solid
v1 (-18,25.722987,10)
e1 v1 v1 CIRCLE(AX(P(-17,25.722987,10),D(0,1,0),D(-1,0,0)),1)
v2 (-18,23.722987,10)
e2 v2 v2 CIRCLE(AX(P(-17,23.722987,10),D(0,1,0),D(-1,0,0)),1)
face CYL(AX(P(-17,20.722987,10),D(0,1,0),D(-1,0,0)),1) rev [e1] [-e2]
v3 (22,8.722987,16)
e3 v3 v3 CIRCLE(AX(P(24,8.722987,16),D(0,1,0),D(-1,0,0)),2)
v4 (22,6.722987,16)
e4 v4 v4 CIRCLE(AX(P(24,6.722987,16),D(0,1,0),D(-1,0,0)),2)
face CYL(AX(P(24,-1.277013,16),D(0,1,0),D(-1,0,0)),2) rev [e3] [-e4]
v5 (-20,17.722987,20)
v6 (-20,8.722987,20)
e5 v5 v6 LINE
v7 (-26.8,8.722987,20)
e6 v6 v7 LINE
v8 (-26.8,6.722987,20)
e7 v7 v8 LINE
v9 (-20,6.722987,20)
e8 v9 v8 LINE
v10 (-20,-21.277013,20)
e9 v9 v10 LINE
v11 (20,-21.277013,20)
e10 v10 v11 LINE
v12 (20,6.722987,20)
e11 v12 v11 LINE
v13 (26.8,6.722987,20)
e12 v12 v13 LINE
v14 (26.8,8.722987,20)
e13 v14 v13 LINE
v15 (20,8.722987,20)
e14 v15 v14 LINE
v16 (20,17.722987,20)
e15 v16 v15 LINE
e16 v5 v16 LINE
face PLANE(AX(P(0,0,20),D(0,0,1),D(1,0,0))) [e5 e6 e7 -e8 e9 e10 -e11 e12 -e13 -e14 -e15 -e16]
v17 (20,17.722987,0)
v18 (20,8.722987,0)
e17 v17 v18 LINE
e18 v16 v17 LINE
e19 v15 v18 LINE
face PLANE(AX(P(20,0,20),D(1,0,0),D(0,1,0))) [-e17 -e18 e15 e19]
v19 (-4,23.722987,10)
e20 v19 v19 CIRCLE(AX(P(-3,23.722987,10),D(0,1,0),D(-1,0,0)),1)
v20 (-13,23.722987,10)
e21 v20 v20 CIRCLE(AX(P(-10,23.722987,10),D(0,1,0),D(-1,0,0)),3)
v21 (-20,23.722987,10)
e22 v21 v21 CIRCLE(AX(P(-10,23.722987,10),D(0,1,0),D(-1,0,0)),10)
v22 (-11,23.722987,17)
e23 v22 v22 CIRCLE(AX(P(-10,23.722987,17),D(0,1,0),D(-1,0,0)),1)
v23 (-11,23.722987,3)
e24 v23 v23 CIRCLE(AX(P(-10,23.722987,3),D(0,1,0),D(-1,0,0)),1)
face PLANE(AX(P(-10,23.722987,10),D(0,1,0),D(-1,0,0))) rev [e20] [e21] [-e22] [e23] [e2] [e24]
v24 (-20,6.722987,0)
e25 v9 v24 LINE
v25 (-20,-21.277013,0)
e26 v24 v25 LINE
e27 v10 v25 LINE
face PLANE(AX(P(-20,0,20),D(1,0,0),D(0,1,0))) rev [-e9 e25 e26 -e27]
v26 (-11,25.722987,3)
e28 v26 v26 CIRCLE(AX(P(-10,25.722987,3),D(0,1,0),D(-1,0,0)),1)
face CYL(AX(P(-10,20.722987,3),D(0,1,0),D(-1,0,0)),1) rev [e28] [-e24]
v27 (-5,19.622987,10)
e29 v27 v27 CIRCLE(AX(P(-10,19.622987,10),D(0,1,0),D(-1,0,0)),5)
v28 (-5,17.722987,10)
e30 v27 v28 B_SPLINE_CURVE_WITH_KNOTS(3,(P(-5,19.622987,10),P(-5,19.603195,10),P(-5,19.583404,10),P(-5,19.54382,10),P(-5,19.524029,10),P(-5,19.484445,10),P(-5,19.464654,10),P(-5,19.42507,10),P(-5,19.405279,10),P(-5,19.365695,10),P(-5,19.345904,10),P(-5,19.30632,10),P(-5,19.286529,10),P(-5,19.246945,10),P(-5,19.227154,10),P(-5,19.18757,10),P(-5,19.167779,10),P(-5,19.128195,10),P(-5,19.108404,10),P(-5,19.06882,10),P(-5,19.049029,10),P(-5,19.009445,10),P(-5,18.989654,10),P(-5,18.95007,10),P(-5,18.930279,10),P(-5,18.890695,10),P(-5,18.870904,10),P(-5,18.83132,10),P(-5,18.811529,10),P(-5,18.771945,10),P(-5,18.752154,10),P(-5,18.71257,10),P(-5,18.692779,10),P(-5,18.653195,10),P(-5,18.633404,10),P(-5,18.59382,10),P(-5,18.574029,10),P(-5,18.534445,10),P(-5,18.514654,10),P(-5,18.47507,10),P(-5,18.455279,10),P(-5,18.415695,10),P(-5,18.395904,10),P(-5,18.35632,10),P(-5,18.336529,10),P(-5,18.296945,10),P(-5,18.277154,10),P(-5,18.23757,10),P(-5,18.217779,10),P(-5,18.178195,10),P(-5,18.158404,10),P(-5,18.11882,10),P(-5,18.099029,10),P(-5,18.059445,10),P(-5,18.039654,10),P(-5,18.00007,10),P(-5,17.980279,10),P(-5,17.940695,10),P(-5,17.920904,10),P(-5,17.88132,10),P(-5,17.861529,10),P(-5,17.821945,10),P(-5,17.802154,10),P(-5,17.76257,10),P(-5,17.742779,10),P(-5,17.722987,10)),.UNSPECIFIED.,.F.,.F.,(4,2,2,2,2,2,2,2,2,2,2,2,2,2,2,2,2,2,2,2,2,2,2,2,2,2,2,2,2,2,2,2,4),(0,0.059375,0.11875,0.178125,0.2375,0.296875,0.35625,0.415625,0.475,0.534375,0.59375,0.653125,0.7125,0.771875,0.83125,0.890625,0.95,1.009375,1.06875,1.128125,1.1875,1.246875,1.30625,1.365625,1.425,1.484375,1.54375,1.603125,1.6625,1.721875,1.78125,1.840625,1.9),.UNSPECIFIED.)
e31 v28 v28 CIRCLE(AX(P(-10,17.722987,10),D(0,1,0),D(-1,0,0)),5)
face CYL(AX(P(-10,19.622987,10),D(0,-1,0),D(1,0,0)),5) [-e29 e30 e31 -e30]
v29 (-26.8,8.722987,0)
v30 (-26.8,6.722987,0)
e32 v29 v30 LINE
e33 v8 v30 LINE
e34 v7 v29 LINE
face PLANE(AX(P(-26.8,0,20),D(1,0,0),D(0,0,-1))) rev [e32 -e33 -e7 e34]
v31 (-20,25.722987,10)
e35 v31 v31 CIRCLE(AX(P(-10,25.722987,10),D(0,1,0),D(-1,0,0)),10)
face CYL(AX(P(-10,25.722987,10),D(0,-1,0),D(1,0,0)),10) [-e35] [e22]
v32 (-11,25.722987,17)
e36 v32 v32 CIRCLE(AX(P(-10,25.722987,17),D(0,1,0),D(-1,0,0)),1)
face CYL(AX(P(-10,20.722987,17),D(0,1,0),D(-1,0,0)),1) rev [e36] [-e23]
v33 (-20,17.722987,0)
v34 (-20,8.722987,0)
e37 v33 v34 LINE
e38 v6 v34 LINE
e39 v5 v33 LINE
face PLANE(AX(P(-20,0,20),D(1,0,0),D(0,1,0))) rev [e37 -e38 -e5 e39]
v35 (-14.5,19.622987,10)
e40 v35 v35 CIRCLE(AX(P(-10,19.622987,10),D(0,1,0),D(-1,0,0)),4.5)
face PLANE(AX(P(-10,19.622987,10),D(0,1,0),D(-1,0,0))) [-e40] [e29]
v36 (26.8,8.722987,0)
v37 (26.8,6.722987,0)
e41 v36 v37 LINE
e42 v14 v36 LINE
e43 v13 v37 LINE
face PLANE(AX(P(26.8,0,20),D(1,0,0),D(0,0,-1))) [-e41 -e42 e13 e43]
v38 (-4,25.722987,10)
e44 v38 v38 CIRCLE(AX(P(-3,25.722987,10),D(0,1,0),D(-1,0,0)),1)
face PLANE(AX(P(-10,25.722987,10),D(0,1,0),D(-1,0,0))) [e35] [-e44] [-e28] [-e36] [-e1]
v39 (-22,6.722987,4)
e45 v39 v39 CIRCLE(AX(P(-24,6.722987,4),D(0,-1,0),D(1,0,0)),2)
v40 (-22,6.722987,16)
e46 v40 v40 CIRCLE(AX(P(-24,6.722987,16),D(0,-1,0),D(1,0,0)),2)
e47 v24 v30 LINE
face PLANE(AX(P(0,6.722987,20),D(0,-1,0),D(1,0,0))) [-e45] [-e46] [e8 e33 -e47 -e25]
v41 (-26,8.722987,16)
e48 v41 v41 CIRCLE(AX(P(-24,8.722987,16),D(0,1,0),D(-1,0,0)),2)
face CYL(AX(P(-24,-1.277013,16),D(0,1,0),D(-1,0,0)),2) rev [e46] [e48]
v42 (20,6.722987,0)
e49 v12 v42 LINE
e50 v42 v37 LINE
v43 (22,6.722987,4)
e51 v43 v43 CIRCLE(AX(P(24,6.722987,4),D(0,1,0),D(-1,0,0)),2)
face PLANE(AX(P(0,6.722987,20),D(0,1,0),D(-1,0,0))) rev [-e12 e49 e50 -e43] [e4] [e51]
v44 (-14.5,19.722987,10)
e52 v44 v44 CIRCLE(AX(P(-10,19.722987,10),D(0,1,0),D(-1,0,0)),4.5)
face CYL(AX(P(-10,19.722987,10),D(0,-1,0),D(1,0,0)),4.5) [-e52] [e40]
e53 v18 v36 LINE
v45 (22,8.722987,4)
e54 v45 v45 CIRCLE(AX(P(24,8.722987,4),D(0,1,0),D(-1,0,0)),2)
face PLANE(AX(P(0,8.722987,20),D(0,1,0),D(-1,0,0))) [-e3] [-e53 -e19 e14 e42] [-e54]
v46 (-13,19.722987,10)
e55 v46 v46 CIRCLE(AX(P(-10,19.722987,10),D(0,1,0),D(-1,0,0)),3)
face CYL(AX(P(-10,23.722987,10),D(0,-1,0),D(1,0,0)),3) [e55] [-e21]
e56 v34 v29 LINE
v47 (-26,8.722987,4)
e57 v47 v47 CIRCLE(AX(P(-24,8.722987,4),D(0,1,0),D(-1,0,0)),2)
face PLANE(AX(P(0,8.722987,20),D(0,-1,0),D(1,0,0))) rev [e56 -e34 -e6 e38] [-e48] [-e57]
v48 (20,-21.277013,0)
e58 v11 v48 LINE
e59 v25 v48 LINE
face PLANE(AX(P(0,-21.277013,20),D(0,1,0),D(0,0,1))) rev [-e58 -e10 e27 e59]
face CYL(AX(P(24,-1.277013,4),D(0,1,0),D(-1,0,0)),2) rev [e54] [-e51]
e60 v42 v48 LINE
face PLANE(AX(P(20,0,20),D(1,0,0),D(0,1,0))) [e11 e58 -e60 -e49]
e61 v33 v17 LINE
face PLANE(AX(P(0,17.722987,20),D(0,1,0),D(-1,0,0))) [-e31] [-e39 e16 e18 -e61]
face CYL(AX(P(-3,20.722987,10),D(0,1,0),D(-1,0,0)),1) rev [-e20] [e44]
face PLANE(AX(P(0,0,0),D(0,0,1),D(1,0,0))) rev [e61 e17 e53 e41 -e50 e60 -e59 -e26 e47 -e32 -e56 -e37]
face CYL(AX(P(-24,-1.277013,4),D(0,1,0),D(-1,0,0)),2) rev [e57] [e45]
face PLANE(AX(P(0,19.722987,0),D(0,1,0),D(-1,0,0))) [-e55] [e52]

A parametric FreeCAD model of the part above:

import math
import FreeCAD as App
import Part
import Sketcher

V = App.Vector
Q = App.Units.Quantity

doc = App.newDocument("Part")
body = doc.addObject("PartDesign::Body", "Body")

# Sketch on XY plane
sketch1 = body.newObject("Sketcher::SketchObject", "Sketch")
sketch1.AttachmentSupport = (doc.getObject("XY_Plane"), [""])
sketch1.MapMode = "FlatFace"
sketch1.addGeometry(Part.LineSegment(V(-26.8, 8.7, 0), V(-26.8, 6.7, 0)), False)
sketch1.addGeometry(Part.LineSegment(V(-26.8, 6.7, 0), V(-20, 6.7, 0)), False)
sketch1.addGeometry(Part.LineSegment(V(-20, 6.7, 0), V(-20, -21.3, 0)), False)
sketch1.addGeometry(Part.LineSegment(V(-20, -21.3, 0), V(20, -21.3, 0)), False)
sketch1.addGeometry(Part.LineSegment(V(20, -21.3, 0), V(20, 6.7, 0)), False)
sketch1.addGeometry(Part.LineSegment(V(20, 6.7, 0), V(26.8, 6.7, 0)), False)
sketch1.addGeometry(Part.LineSegment(V(26.8, 6.7, 0), V(26.8, 8.7, 0)), False)
sketch1.addGeometry(Part.LineSegment(V(26.8, 8.7, 0), V(20, 8.7, 0)), False)
sketch1.addGeometry(Part.LineSegment(V(20, 8.7, 0), V(20, 17.7, 0)), False)
sketch1.addGeometry(Part.LineSegment(V(20, 17.7, 0), V(-20, 17.7, 0)), False)
sketch1.addGeometry(Part.LineSegment(V(-20, 17.7, 0), V(-20, 8.7, 0)), False)
sketch1.addGeometry(Part.LineSegment(V(-20, 8.7, 0), V(-26.8, 8.7, 0)), False)
sketch1.addConstraint(Sketcher.Constraint("Coincident", 0, 2, 1, 1))
sketch1.addConstraint(Sketcher.Constraint("Coincident", 1, 2, 2, 1))
sketch1.addConstraint(Sketcher.Constraint("Coincident", 2, 2, 3, 1))
sketch1.addConstraint(Sketcher.Constraint("Coincident", 3, 2, 4, 1))
sketch1.addConstraint(Sketcher.Constraint("Coincident", 4, 2, 5, 1))
sketch1.addConstraint(Sketcher.Constraint("Coincident", 5, 2, 6, 1))
sketch1.addConstraint(Sketcher.Constraint("Coincident", 6, 2, 7, 1))
sketch1.addConstraint(Sketcher.Constraint("Coincident", 7, 2, 8, 1))
sketch1.addConstraint(Sketcher.Constraint("Coincident", 8, 2, 9, 1))
sketch1.addConstraint(Sketcher.Constraint("Coincident", 9, 2, 10, 1))
sketch1.addConstraint(Sketcher.Constraint("Coincident", 10, 2, 11, 1))
sketch1.addConstraint(Sketcher.Constraint("Coincident", 11, 2, 0, 1))
sketch1.addConstraint(Sketcher.Constraint("Vertical", 0))
sketch1.addConstraint(Sketcher.Constraint("Horizontal", 1))
sketch1.addConstraint(Sketcher.Constraint("Vertical", 2))
sketch1.addConstraint(Sketcher.Constraint("Horizontal", 3))
sketch1.addConstraint(Sketcher.Constraint("Vertical", 4))
sketch1.addConstraint(Sketcher.Constraint("Horizontal", 5))
sketch1.addConstraint(Sketcher.Constraint("Vertical", 6))
sketch1.addConstraint(Sketcher.Constraint("Horizontal", 7))
sketch1.addConstraint(Sketcher.Constraint("Vertical", 8))
sketch1.addConstraint(Sketcher.Constraint("Horizontal", 9))
sketch1.addConstraint(Sketcher.Constraint("Vertical", 10))
sketch1.addConstraint(Sketcher.Constraint("Horizontal", 11))
sketch1.addConstraint(Sketcher.Constraint("Symmetric", 1, 2, 4, 2, -2))
sketch1.addConstraint(Sketcher.Constraint("Symmetric", 7, 2, 10, 2, -2))
sketch1.addConstraint(Sketcher.Constraint("Vertical", 4, 2, 7, 2))
sketch1.addConstraint(Sketcher.Constraint("Equal", 1, 5))
sketch1.addConstraint(Sketcher.Constraint("DistanceX", 3, 1, 3, 2, Q("40 mm")))
sketch1.addConstraint(Sketcher.Constraint("DistanceY", 0, 2, 0, 1, Q("2 mm")))
sketch1.addConstraint(Sketcher.Constraint("DistanceY", 2, 2, 2, 1, Q("28 mm")))
sketch1.addConstraint(Sketcher.Constraint("DistanceY", 8, 1, 8, 2, Q("9 mm")))
sketch1.addConstraint(Sketcher.Constraint("DistanceX", 1, 1, 1, 2, Q("6.8 mm")))
sketch1.addConstraint(Sketcher.Constraint("DistanceY", -1, 1, 0, 2, Q("6.722987 mm")))
pad1 = body.newObject("PartDesign::Pad", "Pad")
pad1.Profile = sketch1
pad1.Length = 20

# Sketch on XZ plane
sketch2 = body.newObject("Sketcher::SketchObject", "Sketch001")
sketch2.AttachmentSupport = (doc.getObject("XZ_Plane"), [""])
sketch2.MapMode = "FlatFace"
sketch2.AttachmentOffset = App.Placement(V(0, 0, -17.722987), App.Rotation())
sketch2.addGeometry(Part.Circle(V(-10, 10, 0), V(0, 0, 1), 4.5), False)
sketch2.addConstraint(Sketcher.Constraint("Diameter", 0, Q("9 mm")))
sketch2.addConstraint(Sketcher.Constraint("DistanceX", 0, 3, -1, 1, Q("10 mm")))
sketch2.addConstraint(Sketcher.Constraint("DistanceY", -1, 1, 0, 3, Q("10 mm")))
pad2 = body.newObject("PartDesign::Pad", "Pad001")
pad2.Profile = sketch2
pad2.Length = 2
pad2.Reversed = True

# Sketch on XZ plane
sketch3 = body.newObject("Sketcher::SketchObject", "Sketch002")
sketch3.AttachmentSupport = (doc.getObject("XZ_Plane"), [""])
sketch3.MapMode = "FlatFace"
sketch3.AttachmentOffset = App.Placement(V(0, 0, -17.722987), App.Rotation())
sketch3.addGeometry(Part.Circle(V(-10, 10, 0), V(0, 0, 1), 5), False)
sketch3.addConstraint(Sketcher.Constraint("Diameter", 0, Q("10 mm")))
sketch3.addConstraint(Sketcher.Constraint("DistanceX", 0, 3, -1, 1, Q("10 mm")))
sketch3.addConstraint(Sketcher.Constraint("DistanceY", -1, 1, 0, 3, Q("10 mm")))
pad3 = body.newObject("PartDesign::Pad", "Pad002")
pad3.Profile = sketch3
pad3.Length = 1.9
pad3.Reversed = True

# Sketch on XZ plane
sketch4 = body.newObject("Sketcher::SketchObject", "Sketch003")
sketch4.AttachmentSupport = (doc.getObject("XZ_Plane"), [""])
sketch4.MapMode = "FlatFace"
sketch4.AttachmentOffset = App.Placement(V(0, 0, -19.722987), App.Rotation())
sketch4.addGeometry(Part.Circle(V(-10, 10, 0), V(0, 0, 1), 3), False)
sketch4.addConstraint(Sketcher.Constraint("Diameter", 0, Q("6 mm")))
sketch4.addConstraint(Sketcher.Constraint("DistanceX", 0, 3, -1, 1, Q("10 mm")))
sketch4.addConstraint(Sketcher.Constraint("DistanceY", -1, 1, 0, 3, Q("10 mm")))
pad4 = body.newObject("PartDesign::Pad", "Pad003")
pad4.Profile = sketch4
pad4.Length = 4
pad4.Reversed = True

# Sketch on XZ plane
sketch5 = body.newObject("Sketcher::SketchObject", "Sketch004")
sketch5.AttachmentSupport = (doc.getObject("XZ_Plane"), [""])
sketch5.MapMode = "FlatFace"
sketch5.AttachmentOffset = App.Placement(V(0, 0, -23.722987), App.Rotation())
sketch5.addGeometry(Part.Circle(V(-10, 10, 0), V(0, 0, 1), 10), False)
sketch5.addConstraint(Sketcher.Constraint("Diameter", 0, Q("20 mm")))
sketch5.addConstraint(Sketcher.Constraint("DistanceX", 0, 3, -1, 1, Q("10 mm")))
sketch5.addConstraint(Sketcher.Constraint("DistanceY", -1, 1, 0, 3, Q("10 mm")))
pad5 = body.newObject("PartDesign::Pad", "Pad004")
pad5.Profile = sketch5
pad5.Length = 2
pad5.Reversed = True

# Sketch on XZ plane
sketch6 = body.newObject("Sketcher::SketchObject", "Sketch005")
sketch6.AttachmentSupport = (doc.getObject("XZ_Plane"), [""])
sketch6.MapMode = "FlatFace"
sketch6.AttachmentOffset = App.Placement(V(0, 0, -8.722987), App.Rotation())
sketch6.addGeometry(Part.Circle(V(24, 4, 0), V(0, 0, 1), 2), False)
sketch6.addGeometry(Part.Circle(V(24, 16, 0), V(0, 0, 1), 2), False)
sketch6.addConstraint(Sketcher.Constraint("Equal", 0, 1))
sketch6.addConstraint(Sketcher.Constraint("Vertical", 0, 3, 1, 3))
sketch6.addConstraint(Sketcher.Constraint("Diameter", 0, Q("4 mm")))
sketch6.addConstraint(Sketcher.Constraint("DistanceX", -1, 1, 0, 3, Q("24 mm")))
sketch6.addConstraint(Sketcher.Constraint("DistanceY", -1, 1, 0, 3, Q("4 mm")))
sketch6.addConstraint(Sketcher.Constraint("DistanceY", -1, 1, 1, 3, Q("16 mm")))
pocket1 = body.newObject("PartDesign::Pocket", "Pocket")
pocket1.Profile = sketch6
pocket1.Length = 10
pocket1.Reversed = True

# Sketch on XZ plane
sketch7 = body.newObject("Sketcher::SketchObject", "Sketch006")
sketch7.AttachmentSupport = (doc.getObject("XZ_Plane"), [""])
sketch7.MapMode = "FlatFace"
sketch7.AttachmentOffset = App.Placement(V(0, 0, -8.722987), App.Rotation())
sketch7.addGeometry(Part.Circle(V(-24, 4, 0), V(0, 0, 1), 2), False)
sketch7.addGeometry(Part.Circle(V(-24, 16, 0), V(0, 0, 1), 2), False)
sketch7.addConstraint(Sketcher.Constraint("Equal", 0, 1))
sketch7.addConstraint(Sketcher.Constraint("Vertical", 0, 3, 1, 3))
sketch7.addConstraint(Sketcher.Constraint("Diameter", 0, Q("4 mm")))
sketch7.addConstraint(Sketcher.Constraint("DistanceX", 0, 3, -1, 1, Q("24 mm")))
sketch7.addConstraint(Sketcher.Constraint("DistanceY", -1, 1, 0, 3, Q("4 mm")))
sketch7.addConstraint(Sketcher.Constraint("DistanceY", -1, 1, 1, 3, Q("16 mm")))
pocket2 = body.newObject("PartDesign::Pocket", "Pocket001")
pocket2.Profile = sketch7
pocket2.Length = 10
pocket2.Reversed = True

# Sketch on XZ plane
sketch8 = body.newObject("Sketcher::SketchObject", "Sketch007")
sketch8.AttachmentSupport = (doc.getObject("XZ_Plane"), [""])
sketch8.MapMode = "FlatFace"
sketch8.AttachmentOffset = App.Placement(V(0, 0, -25.722987), App.Rotation())
sketch8.addGeometry(Part.Circle(V(-17, 10, 0), V(0, 0, 1), 1), False)
sketch8.addGeometry(Part.ArcOfCircle(Part.Circle(V(-10, 3, 0), V(0, 0, 1), 1), math.radians(90), math.radians(270)), False)
sketch8.addGeometry(Part.ArcOfCircle(Part.Circle(V(-10, 3, 0), V(0, 0, 1), 1), math.radians(0), math.radians(90)), False)
sketch8.addGeometry(Part.ArcOfCircle(Part.Circle(V(-10, 3, 0), V(0, 0, 1), 1), math.radians(-90), math.radians(0)), False)
sketch8.addGeometry(Part.Circle(V(-3, 10, 0), V(0, 0, 1), 1), False)
sketch8.addGeometry(Part.ArcOfCircle(Part.Circle(V(-10, 17, 0), V(0, 0, 1), 1), math.radians(-90), math.radians(0)), False)
sketch8.addGeometry(Part.ArcOfCircle(Part.Circle(V(-10, 17, 0), V(0, 0, 1), 1), math.radians(90), math.radians(270)), False)
sketch8.addGeometry(Part.ArcOfCircle(Part.Circle(V(-10, 17, 0), V(0, 0, 1), 1), math.radians(0), math.radians(90)), False)
sketch8.addConstraint(Sketcher.Constraint("Tangent", 1, 1, 2, 2))
sketch8.addConstraint(Sketcher.Constraint("Tangent", 2, 1, 3, 2))
sketch8.addConstraint(Sketcher.Constraint("Tangent", 3, 1, 1, 2))
sketch8.addConstraint(Sketcher.Constraint("Tangent", 5, 1, 6, 2))
sketch8.addConstraint(Sketcher.Constraint("Tangent", 6, 1, 7, 2))
sketch8.addConstraint(Sketcher.Constraint("Tangent", 7, 1, 5, 2))
sketch8.addConstraint(Sketcher.Constraint("Equal", 0, 1))
sketch8.addConstraint(Sketcher.Constraint("Equal", 3, 4))
sketch8.addConstraint(Sketcher.Constraint("Equal", 4, 5))
sketch8.addConstraint(Sketcher.Constraint("Horizontal", 0, 3, 4, 3))
sketch8.addConstraint(Sketcher.Constraint("Horizontal", 3, 3, 2, 1))
sketch8.addConstraint(Sketcher.Constraint("Horizontal", 6, 3, 7, 1))
sketch8.addConstraint(Sketcher.Constraint("Vertical", 3, 3, 5, 3))
sketch8.addConstraint(Sketcher.Constraint("Vertical", 7, 3, 1, 1))
sketch8.addConstraint(Sketcher.Constraint("Vertical", 1, 1, 3, 1))
sketch8.addConstraint(Sketcher.Constraint("Vertical", 3, 1, 5, 1))
sketch8.addConstraint(Sketcher.Constraint("Vertical", 5, 1, 6, 1))
sketch8.addConstraint(Sketcher.Constraint("Diameter", 0, Q("2 mm")))
sketch8.addConstraint(Sketcher.Constraint("DistanceX", 0, 3, -1, 1, Q("17 mm")))
sketch8.addConstraint(Sketcher.Constraint("DistanceY", -1, 1, 0, 3, Q("10 mm")))
sketch8.addConstraint(Sketcher.Constraint("DistanceX", 1, 3, -1, 1, Q("10 mm")))
sketch8.addConstraint(Sketcher.Constraint("DistanceY", -1, 1, 1, 3, Q("3 mm")))
sketch8.addConstraint(Sketcher.Constraint("DistanceX", 4, 3, -1, 1, Q("3 mm")))
sketch8.addConstraint(Sketcher.Constraint("DistanceY", -1, 1, 5, 3, Q("17 mm")))
pocket3 = body.newObject("PartDesign::Pocket", "Pocket002")
pocket3.Profile = sketch8
pocket3.Length = 5
pocket3.Reversed = True

doc.recompute()
